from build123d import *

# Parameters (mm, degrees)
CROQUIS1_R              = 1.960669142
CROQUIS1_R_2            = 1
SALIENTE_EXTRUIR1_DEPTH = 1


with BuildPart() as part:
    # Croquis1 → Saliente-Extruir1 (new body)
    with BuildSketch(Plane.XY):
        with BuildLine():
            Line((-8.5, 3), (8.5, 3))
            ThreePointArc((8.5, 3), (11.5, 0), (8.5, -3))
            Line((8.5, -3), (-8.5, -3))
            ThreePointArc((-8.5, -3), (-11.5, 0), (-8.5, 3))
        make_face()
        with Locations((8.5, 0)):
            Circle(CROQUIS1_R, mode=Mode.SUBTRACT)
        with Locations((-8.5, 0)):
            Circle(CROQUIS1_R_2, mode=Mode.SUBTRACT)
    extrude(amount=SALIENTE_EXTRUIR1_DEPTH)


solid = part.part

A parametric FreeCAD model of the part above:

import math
import FreeCAD as App
import Part
import Sketcher

doc = App.newDocument("Part")
body = doc.addObject("PartDesign::Body", "Body")

# Sketch on XY plane
sketch1 = body.newObject("Sketcher::SketchObject", "Sketch")
sketch1.AttachmentSupport = (doc.getObject("XY_Plane"), [""])
sketch1.MapMode = "FlatFace"
sketch1.addGeometry(Part.LineSegment(App.Vector(8.5, 3, 0), App.Vector(-8.5, 3, 0)), False)
sketch1.addGeometry(Part.ArcOfCircle(Part.Circle(App.Vector(-8.5, 0, 0), App.Vector(0, 0, 1), 3), math.radians(90), math.radians(270)), False)
sketch1.addGeometry(Part.LineSegment(App.Vector(-8.5, -3, 0), App.Vector(8.5, -3, 0)), False)
sketch1.addGeometry(Part.ArcOfCircle(Part.Circle(App.Vector(8.5, 0, 0), App.Vector(0, 0, 1), 3), math.radians(-90), math.radians(90)), False)
sketch1.addGeometry(Part.Circle(App.Vector(8.5, 0, 0), App.Vector(0, 0, 1), 1.960669), False)
sketch1.addGeometry(Part.Circle(App.Vector(-8.5, 0, 0), App.Vector(0, 0, 1), 1), False)
sketch1.addConstraint(Sketcher.Constraint("Tangent", 0, 2, 1, 1))
sketch1.addConstraint(Sketcher.Constraint("Tangent", 1, 2, 2, 1))
sketch1.addConstraint(Sketcher.Constraint("Tangent", 2, 2, 3, 1))
sketch1.addConstraint(Sketcher.Constraint("Tangent", 3, 2, 0, 1))
sketch1.addConstraint(Sketcher.Constraint("Horizontal", 0))
sketch1.addConstraint(Sketcher.Constraint("Horizontal", 2))
sketch1.addConstraint(Sketcher.Constraint("Coincident", 4, 3, 3, 3))
sketch1.addConstraint(Sketcher.Constraint("Coincident", 5, 3, 1, 3))
sketch1.addConstraint(Sketcher.Constraint("Symmetric", 1, 3, 3, 3, -1, 1))
sketch1.addConstraint(Sketcher.Constraint("Diameter", 5, 2.0))
sketch1.addConstraint(Sketcher.Constraint("Radius", 1, 3.0))
sketch1.addConstraint(Sketcher.Constraint("DistanceX", 0, 2, 0, 1, 17.0))
sketch1.addConstraint(Sketcher.Constraint("Diameter", 4, 3.921338))
pad1 = body.newObject("PartDesign::Pad", "Pad")
pad1.Profile = sketch1
pad1.Length = 1

doc.recompute()
